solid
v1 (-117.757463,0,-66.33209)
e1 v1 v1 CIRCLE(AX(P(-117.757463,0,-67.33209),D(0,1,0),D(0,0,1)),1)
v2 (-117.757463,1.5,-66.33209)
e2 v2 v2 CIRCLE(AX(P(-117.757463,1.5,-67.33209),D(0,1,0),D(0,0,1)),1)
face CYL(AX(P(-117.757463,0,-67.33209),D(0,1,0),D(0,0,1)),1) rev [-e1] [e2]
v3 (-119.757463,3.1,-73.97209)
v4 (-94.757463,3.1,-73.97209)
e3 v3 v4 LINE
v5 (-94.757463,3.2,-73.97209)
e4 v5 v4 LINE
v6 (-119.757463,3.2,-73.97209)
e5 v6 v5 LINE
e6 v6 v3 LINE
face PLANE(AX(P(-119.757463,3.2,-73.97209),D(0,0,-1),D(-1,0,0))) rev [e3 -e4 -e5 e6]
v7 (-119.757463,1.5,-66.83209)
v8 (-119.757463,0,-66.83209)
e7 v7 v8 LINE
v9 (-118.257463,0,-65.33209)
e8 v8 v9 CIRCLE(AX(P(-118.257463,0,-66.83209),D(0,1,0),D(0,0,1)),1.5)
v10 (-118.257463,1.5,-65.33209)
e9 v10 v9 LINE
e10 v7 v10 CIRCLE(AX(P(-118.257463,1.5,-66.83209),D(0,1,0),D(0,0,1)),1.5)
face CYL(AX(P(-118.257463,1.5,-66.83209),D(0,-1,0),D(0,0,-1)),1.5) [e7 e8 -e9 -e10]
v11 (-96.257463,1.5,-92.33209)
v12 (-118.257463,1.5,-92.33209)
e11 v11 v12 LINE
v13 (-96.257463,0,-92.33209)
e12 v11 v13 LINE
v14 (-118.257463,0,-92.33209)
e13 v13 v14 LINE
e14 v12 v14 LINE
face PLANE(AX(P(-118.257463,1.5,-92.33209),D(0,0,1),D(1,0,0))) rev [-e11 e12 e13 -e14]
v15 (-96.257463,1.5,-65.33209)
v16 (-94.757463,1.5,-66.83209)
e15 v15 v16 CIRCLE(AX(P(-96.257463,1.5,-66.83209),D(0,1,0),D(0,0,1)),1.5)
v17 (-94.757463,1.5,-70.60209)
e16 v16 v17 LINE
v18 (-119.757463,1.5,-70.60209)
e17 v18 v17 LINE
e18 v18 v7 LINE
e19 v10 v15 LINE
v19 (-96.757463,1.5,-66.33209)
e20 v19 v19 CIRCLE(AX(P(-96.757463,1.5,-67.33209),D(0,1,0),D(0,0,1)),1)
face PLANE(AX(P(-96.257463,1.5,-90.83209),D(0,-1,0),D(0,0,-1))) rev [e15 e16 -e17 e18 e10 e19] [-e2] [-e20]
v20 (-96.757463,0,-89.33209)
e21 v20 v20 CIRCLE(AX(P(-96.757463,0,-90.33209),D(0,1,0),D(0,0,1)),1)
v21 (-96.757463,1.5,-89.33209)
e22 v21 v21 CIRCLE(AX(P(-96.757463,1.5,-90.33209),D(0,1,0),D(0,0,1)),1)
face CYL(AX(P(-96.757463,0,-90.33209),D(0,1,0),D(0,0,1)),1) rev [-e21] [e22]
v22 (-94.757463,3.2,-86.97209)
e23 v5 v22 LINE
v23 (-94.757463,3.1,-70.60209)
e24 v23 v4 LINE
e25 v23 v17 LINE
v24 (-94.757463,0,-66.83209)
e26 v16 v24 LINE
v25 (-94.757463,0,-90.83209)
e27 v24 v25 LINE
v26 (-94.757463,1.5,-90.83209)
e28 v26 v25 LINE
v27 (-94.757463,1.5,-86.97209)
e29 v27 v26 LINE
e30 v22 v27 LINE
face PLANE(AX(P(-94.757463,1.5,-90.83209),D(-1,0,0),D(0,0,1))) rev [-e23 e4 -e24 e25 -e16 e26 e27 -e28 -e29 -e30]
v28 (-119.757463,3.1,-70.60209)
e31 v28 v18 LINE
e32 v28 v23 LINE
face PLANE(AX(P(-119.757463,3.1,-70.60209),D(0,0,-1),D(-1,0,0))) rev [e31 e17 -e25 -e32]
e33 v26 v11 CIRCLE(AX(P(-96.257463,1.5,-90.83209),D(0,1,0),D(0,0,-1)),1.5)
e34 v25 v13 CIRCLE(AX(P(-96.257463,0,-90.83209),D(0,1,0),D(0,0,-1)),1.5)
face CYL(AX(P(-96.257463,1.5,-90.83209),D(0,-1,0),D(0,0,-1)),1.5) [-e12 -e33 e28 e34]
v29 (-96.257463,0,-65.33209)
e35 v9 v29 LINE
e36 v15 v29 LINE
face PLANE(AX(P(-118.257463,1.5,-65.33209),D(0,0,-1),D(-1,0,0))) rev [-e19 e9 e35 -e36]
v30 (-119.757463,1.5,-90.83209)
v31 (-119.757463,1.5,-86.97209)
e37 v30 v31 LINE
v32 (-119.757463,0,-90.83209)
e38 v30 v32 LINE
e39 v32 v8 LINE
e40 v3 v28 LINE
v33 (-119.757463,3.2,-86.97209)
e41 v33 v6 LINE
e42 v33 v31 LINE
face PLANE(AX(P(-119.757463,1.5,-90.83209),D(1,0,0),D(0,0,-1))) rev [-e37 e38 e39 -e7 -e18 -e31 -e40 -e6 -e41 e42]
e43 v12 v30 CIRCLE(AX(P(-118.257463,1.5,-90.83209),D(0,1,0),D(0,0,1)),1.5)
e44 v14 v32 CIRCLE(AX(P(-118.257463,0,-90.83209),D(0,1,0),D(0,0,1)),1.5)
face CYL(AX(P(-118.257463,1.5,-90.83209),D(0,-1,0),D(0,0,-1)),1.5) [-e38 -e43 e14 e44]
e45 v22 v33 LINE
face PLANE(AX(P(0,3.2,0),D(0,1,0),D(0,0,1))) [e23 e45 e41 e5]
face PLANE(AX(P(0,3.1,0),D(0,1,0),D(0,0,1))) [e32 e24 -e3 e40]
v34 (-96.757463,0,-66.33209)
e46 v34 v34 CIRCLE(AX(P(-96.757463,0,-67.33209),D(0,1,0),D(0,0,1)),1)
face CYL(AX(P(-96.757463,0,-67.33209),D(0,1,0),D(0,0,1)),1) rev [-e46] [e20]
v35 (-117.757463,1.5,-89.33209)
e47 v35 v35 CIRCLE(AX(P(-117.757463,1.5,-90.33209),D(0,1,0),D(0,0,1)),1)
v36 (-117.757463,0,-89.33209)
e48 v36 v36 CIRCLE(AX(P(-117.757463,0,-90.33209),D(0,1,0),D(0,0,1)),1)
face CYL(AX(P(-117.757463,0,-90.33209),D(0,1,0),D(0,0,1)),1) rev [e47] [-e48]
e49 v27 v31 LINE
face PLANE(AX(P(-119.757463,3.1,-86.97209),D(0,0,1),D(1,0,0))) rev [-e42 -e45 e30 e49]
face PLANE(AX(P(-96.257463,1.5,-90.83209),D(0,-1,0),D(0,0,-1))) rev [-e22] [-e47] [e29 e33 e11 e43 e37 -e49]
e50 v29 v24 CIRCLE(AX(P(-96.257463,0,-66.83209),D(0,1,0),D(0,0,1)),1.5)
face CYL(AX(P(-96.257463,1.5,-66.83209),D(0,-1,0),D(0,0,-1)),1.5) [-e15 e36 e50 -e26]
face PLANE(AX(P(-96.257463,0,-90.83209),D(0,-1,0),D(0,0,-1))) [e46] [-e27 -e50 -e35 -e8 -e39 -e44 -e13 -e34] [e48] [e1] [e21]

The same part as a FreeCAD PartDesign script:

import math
import FreeCAD as App
import Part
import Sketcher

V = App.Vector
Q = App.Units.Quantity


def add_polygon(sketch, points):
    """Adds a closed chain of lines whose ends are joined by coincident constraints."""
    first, n = sketch.GeometryCount, len(points)
    for a, b in zip(points, points[1:] + points[:1]):
        sketch.addGeometry(Part.LineSegment(App.Vector(*a, 0), App.Vector(*b, 0)), False)
    for i in range(n):
        sketch.addConstraint(Sketcher.Constraint("Coincident", first + i, 2, first + (i + 1) % n, 1))

doc = App.newDocument("Part")
body = doc.addObject("PartDesign::Body", "Body")

# Sketch on XZ plane
sketch1 = body.newObject("Sketcher::SketchObject", "Sketch")
sketch1.AttachmentSupport = (doc.getObject("XZ_Plane"), [""])
sketch1.MapMode = "FlatFace"
sketch1.addGeometry(Part.LineSegment(V(-96.3, -92.3, 0), V(-118.3, -92.3, 0)), False)
sketch1.addGeometry(Part.ArcOfCircle(Part.Circle(V(-118.3, -90.8, 0), V(0, 0, 1), 1.5), math.radians(-180), math.radians(-90)), False)
sketch1.addGeometry(Part.LineSegment(V(-119.8, -90.8, 0), V(-119.8, -66.8, 0)), False)
sketch1.addGeometry(Part.ArcOfCircle(Part.Circle(V(-118.3, -66.8, 0), V(0, 0, 1), 1.5), math.radians(90), math.radians(180)), False)
sketch1.addGeometry(Part.LineSegment(V(-118.3, -65.3, 0), V(-96.3, -65.3, 0)), False)
sketch1.addGeometry(Part.ArcOfCircle(Part.Circle(V(-96.3, -66.8, 0), V(0, 0, 1), 1.5), math.radians(0), math.radians(90)), False)
sketch1.addGeometry(Part.LineSegment(V(-94.8, -66.8, 0), V(-94.8, -90.8, 0)), False)
sketch1.addGeometry(Part.ArcOfCircle(Part.Circle(V(-96.3, -90.8, 0), V(0, 0, 1), 1.5), math.radians(-90), math.radians(0)), False)
sketch1.addConstraint(Sketcher.Constraint("Tangent", 0, 2, 1, 2))
sketch1.addConstraint(Sketcher.Constraint("Tangent", 1, 1, 2, 1))
sketch1.addConstraint(Sketcher.Constraint("Tangent", 2, 2, 3, 2))
sketch1.addConstraint(Sketcher.Constraint("Tangent", 3, 1, 4, 1))
sketch1.addConstraint(Sketcher.Constraint("Tangent", 4, 2, 5, 2))
sketch1.addConstraint(Sketcher.Constraint("Tangent", 5, 1, 6, 1))
sketch1.addConstraint(Sketcher.Constraint("Tangent", 6, 2, 7, 2))
sketch1.addConstraint(Sketcher.Constraint("Tangent", 7, 1, 0, 1))
sketch1.addConstraint(Sketcher.Constraint("Horizontal", 0))
sketch1.addConstraint(Sketcher.Constraint("Vertical", 2))
sketch1.addConstraint(Sketcher.Constraint("Horizontal", 4))
sketch1.addConstraint(Sketcher.Constraint("Vertical", 6))
sketch1.addConstraint(Sketcher.Constraint("Equal", 1, 3))
sketch1.addConstraint(Sketcher.Constraint("Equal", 3, 5))
sketch1.addConstraint(Sketcher.Constraint("Equal", 5, 7))
sketch1.addConstraint(Sketcher.Constraint("Radius", 1, Q("1.5 mm")))
sketch1.addConstraint(Sketcher.Constraint("DistanceX", 0, 2, 0, 1, Q("22 mm")))
sketch1.addConstraint(Sketcher.Constraint("DistanceY", 2, 1, 2, 2, Q("24 mm")))
sketch1.addConstraint(Sketcher.Constraint("DistanceY", 1, 3, -1, 1, Q("90.83209 mm")))
sketch1.addConstraint(Sketcher.Constraint("DistanceX", 1, 3, -1, 1, Q("118.257463 mm")))
pad1 = body.newObject("PartDesign::Pad", "Pad")
pad1.Profile = sketch1
pad1.Length = 1.5
pad1.Reversed = True

# Sketch on XZ plane
sketch2 = body.newObject("Sketcher::SketchObject", "Sketch001")
sketch2.AttachmentSupport = (doc.getObject("XZ_Plane"), [""])
sketch2.MapMode = "FlatFace"
sketch2.AttachmentOffset = App.Placement(V(0, 0, -1.5), App.Rotation())
sketch2.addGeometry(Part.Circle(V(-117.8, -90.3, 0), V(0, 0, 1), 1), False)
sketch2.addGeometry(Part.Circle(V(-96.8, -90.3, 0), V(0, 0, 1), 1), False)
sketch2.addGeometry(Part.Circle(V(-96.8, -67.3, 0), V(0, 0, 1), 1), False)
sketch2.addGeometry(Part.Circle(V(-117.8, -67.3, 0), V(0, 0, 1), 1), False)
sketch2.addConstraint(Sketcher.Constraint("Equal", 0, 1))
sketch2.addConstraint(Sketcher.Constraint("Equal", 1, 2))
sketch2.addConstraint(Sketcher.Constraint("Equal", 2, 3))
sketch2.addConstraint(Sketcher.Constraint("Horizontal", 0, 3, 1, 3))
sketch2.addConstraint(Sketcher.Constraint("Horizontal", 2, 3, 3, 3))
sketch2.addConstraint(Sketcher.Constraint("Vertical", 1, 3, 2, 3))
sketch2.addConstraint(Sketcher.Constraint("Vertical", 0, 3, 3, 3))
sketch2.addConstraint(Sketcher.Constraint("Diameter", 0, Q("2 mm")))
sketch2.addConstraint(Sketcher.Constraint("DistanceX", 0, 3, 1, 3, Q("21 mm")))
sketch2.addConstraint(Sketcher.Constraint("DistanceY", 1, 3, 2, 3, Q("23 mm")))
sketch2.addConstraint(Sketcher.Constraint("DistanceY", 0, 3, -1, 1, Q("90.33209 mm")))
sketch2.addConstraint(Sketcher.Constraint("DistanceX", 0, 3, -1, 1, Q("117.757463 mm")))
pocket1 = body.newObject("PartDesign::Pocket", "Pocket")
pocket1.Profile = sketch2
pocket1.Type = "ThroughAll"
pocket1.Reversed = True

# Sketch on XZ plane
sketch3 = body.newObject("Sketcher::SketchObject", "Sketch002")
sketch3.AttachmentSupport = (doc.getObject("XZ_Plane"), [""])
sketch3.MapMode = "FlatFace"
sketch3.AttachmentOffset = App.Placement(V(0, 0, -1.5), App.Rotation())
add_polygon(sketch3, [(-120, -87), (-120, -71), (-95, -71), (-95, -87)])  # lines 0-3
sketch3.addConstraint(Sketcher.Constraint("Vertical", 0))
sketch3.addConstraint(Sketcher.Constraint("Horizontal", 1))
sketch3.addConstraint(Sketcher.Constraint("Vertical", 2))
sketch3.addConstraint(Sketcher.Constraint("Horizontal", 3))
sketch3.addConstraint(Sketcher.Constraint("DistanceX", 1, 1, 1, 2, Q("25 mm")))
sketch3.addConstraint(Sketcher.Constraint("DistanceY", 0, 1, 0, 2, Q("16.37 mm")))
sketch3.addConstraint(Sketcher.Constraint("DistanceY", 0, 2, -1, 1, Q("70.60209 mm")))
sketch3.addConstraint(Sketcher.Constraint("DistanceX", 0, 2, -1, 1, Q("119.757463 mm")))
pad2 = body.newObject("PartDesign::Pad", "Pad001")
pad2.Profile = sketch3
pad2.Length = 1.6
pad2.Reversed = True

# Sketch on XZ plane
sketch4 = body.newObject("Sketcher::SketchObject", "Sketch003")
sketch4.AttachmentSupport = (doc.getObject("XZ_Plane"), [""])
sketch4.MapMode = "FlatFace"
sketch4.AttachmentOffset = App.Placement(V(0, 0, -3.1), App.Rotation())
add_polygon(sketch4, [(-120, -87), (-120, -74), (-95, -74), (-95, -87)])  # lines 0-3
sketch4.addConstraint(Sketcher.Constraint("Vertical", 0))
sketch4.addConstraint(Sketcher.Constraint("Horizontal", 1))
sketch4.addConstraint(Sketcher.Constraint("Vertical", 2))
sketch4.addConstraint(Sketcher.Constraint("Horizontal", 3))
sketch4.addConstraint(Sketcher.Constraint("DistanceX", 1, 1, 1, 2, Q("25 mm")))
sketch4.addConstraint(Sketcher.Constraint("DistanceY", 0, 1, 0, 2, Q("13 mm")))
sketch4.addConstraint(Sketcher.Constraint("DistanceY", 0, 2, -1, 1, Q("73.97209 mm")))
sketch4.addConstraint(Sketcher.Constraint("DistanceX", 0, 2, -1, 1, Q("119.757463 mm")))
pad3 = body.newObject("PartDesign::Pad", "Pad002")
pad3.Profile = sketch4
pad3.Length = 0.1
pad3.Reversed = True

doc.recompute()
